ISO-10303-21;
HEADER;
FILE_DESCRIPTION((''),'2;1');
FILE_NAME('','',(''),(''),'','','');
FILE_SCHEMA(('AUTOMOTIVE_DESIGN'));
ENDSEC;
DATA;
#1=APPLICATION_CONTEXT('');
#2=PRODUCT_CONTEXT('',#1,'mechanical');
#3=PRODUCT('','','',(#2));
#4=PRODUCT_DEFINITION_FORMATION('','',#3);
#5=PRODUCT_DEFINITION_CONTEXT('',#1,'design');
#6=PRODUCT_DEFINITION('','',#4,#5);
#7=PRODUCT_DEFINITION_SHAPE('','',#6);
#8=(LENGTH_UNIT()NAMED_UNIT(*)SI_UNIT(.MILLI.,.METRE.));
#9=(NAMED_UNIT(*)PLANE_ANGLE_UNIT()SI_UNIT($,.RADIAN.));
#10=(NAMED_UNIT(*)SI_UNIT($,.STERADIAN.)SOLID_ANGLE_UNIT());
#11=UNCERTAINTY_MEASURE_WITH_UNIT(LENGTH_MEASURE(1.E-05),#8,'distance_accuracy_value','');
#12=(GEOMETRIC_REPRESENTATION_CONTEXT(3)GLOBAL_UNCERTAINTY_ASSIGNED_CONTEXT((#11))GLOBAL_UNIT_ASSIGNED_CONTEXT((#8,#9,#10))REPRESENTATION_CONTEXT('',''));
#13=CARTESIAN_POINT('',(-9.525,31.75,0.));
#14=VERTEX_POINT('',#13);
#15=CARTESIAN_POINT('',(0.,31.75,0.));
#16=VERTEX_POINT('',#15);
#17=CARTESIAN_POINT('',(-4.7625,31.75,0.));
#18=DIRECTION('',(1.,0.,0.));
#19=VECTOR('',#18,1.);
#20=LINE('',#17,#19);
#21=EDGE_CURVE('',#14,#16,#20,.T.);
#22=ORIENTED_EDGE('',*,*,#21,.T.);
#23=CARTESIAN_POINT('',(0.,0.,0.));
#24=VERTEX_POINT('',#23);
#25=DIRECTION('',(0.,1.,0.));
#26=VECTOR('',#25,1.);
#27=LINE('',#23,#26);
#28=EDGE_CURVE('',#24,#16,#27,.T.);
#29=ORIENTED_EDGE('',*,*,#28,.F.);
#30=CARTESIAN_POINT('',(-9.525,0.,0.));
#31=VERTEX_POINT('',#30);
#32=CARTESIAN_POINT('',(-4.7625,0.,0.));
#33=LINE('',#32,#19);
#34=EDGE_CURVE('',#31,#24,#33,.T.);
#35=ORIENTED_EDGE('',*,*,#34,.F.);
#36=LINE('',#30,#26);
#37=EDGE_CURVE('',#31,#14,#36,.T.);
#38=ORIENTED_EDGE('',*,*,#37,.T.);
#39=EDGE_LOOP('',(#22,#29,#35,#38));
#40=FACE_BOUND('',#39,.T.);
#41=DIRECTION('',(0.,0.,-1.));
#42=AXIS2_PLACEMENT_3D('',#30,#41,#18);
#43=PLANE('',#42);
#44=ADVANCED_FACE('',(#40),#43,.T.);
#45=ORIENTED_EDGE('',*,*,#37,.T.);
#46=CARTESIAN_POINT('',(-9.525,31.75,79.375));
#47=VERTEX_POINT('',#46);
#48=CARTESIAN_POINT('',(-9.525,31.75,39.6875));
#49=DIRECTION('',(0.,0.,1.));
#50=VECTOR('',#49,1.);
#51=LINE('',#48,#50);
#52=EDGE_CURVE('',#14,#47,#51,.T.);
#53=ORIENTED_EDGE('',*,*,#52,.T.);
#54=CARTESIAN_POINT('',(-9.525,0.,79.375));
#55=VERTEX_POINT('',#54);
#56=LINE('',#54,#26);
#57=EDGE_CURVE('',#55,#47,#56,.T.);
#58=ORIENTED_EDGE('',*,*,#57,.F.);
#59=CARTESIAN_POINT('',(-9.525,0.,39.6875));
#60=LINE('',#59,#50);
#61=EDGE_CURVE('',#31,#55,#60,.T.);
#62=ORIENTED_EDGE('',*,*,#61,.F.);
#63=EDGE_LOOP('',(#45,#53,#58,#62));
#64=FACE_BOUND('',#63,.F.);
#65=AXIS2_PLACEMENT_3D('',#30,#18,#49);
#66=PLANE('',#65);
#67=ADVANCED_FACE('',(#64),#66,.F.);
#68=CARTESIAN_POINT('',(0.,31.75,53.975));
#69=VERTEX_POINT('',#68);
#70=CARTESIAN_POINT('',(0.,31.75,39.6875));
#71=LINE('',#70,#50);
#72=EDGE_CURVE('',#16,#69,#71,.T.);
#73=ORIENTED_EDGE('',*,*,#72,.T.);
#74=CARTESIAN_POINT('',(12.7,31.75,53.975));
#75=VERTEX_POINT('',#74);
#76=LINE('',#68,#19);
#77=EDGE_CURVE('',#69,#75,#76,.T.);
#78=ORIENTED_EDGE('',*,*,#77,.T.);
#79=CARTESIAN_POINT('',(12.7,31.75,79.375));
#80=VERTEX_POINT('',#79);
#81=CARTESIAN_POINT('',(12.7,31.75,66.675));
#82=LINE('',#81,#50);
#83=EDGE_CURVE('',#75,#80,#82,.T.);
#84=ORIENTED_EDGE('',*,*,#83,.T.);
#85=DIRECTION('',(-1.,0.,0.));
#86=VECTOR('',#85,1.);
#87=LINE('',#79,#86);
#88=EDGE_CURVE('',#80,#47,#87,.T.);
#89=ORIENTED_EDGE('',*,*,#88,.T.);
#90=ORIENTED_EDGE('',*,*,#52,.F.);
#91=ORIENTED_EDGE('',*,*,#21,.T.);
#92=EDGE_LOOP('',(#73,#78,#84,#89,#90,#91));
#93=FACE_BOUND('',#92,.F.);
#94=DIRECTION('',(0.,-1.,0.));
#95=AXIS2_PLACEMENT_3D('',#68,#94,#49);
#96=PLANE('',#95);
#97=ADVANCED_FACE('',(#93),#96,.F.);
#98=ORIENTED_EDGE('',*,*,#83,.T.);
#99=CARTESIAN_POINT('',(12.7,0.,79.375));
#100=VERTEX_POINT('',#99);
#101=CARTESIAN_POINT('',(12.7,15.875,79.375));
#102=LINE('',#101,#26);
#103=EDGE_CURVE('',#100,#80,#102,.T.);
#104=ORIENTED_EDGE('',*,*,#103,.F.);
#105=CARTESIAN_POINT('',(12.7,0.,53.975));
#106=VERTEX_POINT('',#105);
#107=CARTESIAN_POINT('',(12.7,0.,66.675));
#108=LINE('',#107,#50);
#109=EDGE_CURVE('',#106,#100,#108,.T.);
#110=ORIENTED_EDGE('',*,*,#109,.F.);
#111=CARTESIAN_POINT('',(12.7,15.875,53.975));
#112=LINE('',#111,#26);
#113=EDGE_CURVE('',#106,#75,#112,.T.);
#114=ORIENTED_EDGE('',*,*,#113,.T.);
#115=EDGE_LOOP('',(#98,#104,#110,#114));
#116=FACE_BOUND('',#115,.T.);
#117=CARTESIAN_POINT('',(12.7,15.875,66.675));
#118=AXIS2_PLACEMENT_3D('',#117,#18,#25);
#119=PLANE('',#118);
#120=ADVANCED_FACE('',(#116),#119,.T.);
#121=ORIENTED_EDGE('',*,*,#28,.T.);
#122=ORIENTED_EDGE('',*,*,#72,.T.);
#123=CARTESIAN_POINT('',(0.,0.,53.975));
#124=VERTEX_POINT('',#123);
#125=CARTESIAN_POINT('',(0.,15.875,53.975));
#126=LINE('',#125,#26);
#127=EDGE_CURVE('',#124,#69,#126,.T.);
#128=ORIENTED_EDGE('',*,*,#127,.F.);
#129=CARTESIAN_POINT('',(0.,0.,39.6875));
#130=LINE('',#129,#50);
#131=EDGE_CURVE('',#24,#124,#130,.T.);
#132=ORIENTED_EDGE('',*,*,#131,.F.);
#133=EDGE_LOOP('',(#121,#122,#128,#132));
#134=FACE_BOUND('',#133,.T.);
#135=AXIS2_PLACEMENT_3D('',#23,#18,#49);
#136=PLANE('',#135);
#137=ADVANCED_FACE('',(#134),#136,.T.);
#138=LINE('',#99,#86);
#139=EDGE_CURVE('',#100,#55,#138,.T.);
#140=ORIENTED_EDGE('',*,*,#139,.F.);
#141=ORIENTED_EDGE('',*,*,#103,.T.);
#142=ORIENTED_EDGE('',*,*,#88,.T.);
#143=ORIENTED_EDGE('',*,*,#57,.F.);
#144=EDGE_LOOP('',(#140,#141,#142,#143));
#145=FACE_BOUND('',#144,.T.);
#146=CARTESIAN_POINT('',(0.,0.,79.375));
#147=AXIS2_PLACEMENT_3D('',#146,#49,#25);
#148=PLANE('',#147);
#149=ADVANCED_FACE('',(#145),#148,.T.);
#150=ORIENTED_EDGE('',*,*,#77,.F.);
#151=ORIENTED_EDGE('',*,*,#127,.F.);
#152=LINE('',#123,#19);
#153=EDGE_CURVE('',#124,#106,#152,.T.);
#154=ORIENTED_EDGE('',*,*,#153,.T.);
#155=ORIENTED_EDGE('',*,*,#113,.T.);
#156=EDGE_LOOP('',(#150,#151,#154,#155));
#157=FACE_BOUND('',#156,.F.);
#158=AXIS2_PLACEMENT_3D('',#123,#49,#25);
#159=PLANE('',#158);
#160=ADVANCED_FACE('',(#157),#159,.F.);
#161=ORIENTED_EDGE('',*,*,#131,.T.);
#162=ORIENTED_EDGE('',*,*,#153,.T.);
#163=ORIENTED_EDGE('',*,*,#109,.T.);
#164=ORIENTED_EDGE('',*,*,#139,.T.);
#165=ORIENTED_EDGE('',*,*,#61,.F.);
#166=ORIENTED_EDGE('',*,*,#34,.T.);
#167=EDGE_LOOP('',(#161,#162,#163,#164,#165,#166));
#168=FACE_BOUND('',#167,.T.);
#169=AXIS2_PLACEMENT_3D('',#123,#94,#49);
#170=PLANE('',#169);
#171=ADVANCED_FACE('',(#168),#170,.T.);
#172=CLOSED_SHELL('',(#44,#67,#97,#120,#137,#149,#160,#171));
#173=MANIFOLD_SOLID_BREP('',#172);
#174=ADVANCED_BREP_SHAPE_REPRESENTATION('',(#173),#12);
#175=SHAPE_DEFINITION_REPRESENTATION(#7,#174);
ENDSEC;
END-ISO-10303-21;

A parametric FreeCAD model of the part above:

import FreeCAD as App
import Part
import Sketcher

V = App.Vector
Q = App.Units.Quantity

doc = App.newDocument("Part")
body = doc.addObject("PartDesign::Body", "Body")

sketch1 = body.newObject("Sketcher::SketchObject", "Sketch")
sketch1.AttachmentSupport = (doc.getObject("XZ_Plane"), [""])
sketch1.MapMode = "FlatFace"
sketch1.addGeometry([
    Part.LineSegment(V(-9.525, 79.375, 0), V(-9.525, 0, 0)),
    Part.LineSegment(V(-9.525, 0, 0), V(0, 0, 0)),
    Part.LineSegment(V(0, 0, 0), V(0, 79.375, 0)),
    Part.LineSegment(V(0, 79.375, 0), V(-9.525, 79.375, 0)),
], False)
sketch1.addConstraint([
    Sketcher.Constraint("Coincident", 0, 2, 1, 1),
    Sketcher.Constraint("Coincident", 1, 2, 2, 1),
    Sketcher.Constraint("Coincident", 2, 2, 3, 1),
    Sketcher.Constraint("Coincident", 3, 2, 0, 1),
    Sketcher.Constraint("Vertical", 0),
    Sketcher.Constraint("Horizontal", 1),
    Sketcher.Constraint("Vertical", 2),
    Sketcher.Constraint("Horizontal", 3),
    Sketcher.Constraint("Coincident", 1, 2, -1, 1),
    Sketcher.Constraint("DistanceX", 1, 1, 1, 2, Q("0.375 in")),
    Sketcher.Constraint("DistanceY", 0, 2, 0, 1, Q("3.125 in")),
])
pad1 = body.newObject("PartDesign::Pad", "Pad")
pad1.Profile = sketch1
pad1.Length = Q("1.25 in")
pad1.Reversed = True

sketch2 = body.newObject("Sketcher::SketchObject", "Sketch001")
sketch2.AttachmentSupport = (doc.getObject("YZ_Plane"), [""])
sketch2.MapMode = "FlatFace"
sketch2.addGeometry([
    Part.LineSegment(V(0, 79.375, 0), V(0, 53.975, 0)),
    Part.LineSegment(V(0, 53.975, 0), V(31.75, 53.975, 0)),
    Part.LineSegment(V(31.75, 53.975, 0), V(31.75, 79.375, 0)),
    Part.LineSegment(V(31.75, 79.375, 0), V(0, 79.375, 0)),
], False)
sketch2.addConstraint([
    Sketcher.Constraint("Coincident", 0, 2, 1, 1),
    Sketcher.Constraint("Coincident", 1, 2, 2, 1),
    Sketcher.Constraint("Coincident", 2, 2, 3, 1),
    Sketcher.Constraint("Coincident", 3, 2, 0, 1),
    Sketcher.Constraint("Vertical", 0),
    Sketcher.Constraint("Horizontal", 1),
    Sketcher.Constraint("Vertical", 2),
    Sketcher.Constraint("Horizontal", 3),
    Sketcher.Constraint("PointOnObject", 0, 2, -2),
    Sketcher.Constraint("DistanceY", 0, 2, 0, 1, Q("1 in")),
    Sketcher.Constraint("DistanceX", 1, 1, 1, 2, Q("1.25 in")),
    Sketcher.Constraint("DistanceY", -1, 1, 0, 2, Q("2.125 in")),
])
pad2 = body.newObject("PartDesign::Pad", "Pad001")
pad2.Profile = sketch2
pad2.Length = Q("0.5 in")

doc.recompute()
